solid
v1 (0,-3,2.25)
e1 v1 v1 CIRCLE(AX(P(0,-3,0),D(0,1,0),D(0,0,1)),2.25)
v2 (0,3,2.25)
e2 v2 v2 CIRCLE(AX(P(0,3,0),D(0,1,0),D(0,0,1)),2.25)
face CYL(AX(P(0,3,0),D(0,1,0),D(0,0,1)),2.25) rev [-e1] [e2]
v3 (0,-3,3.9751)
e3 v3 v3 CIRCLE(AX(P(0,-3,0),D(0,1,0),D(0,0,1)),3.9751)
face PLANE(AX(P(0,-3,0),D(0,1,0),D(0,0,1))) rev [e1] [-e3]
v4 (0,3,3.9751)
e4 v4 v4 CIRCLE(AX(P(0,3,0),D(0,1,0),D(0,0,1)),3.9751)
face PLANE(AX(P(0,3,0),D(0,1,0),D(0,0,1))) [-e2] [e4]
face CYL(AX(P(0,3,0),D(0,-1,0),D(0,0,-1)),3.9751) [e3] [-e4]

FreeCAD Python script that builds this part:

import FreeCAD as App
import Part
import Sketcher
from FreeCAD import Vector

doc = App.newDocument("Part")
body = doc.addObject("PartDesign::Body", "Body")

sketch1 = doc.addObject("Sketcher::SketchObject", "Sketch")
body.addObject(sketch1)
sketch1.AttachmentSupport = (doc.XZ_Plane, [""])
sketch1.MapMode = "FlatFace"
sketch1.addGeometry(Part.Circle(Vector(0, 0, 0), Vector(0, 0, 1), 4), False)
sketch1.addConstraint([
    Sketcher.Constraint("Coincident", 0, 3, -1, 1),
    Sketcher.Constraint("Diameter", 0, 7.9502),
])
pad1 = doc.addObject("PartDesign::Pad", "Pad")
body.addObject(pad1)
pad1.Profile = sketch1
pad1.Length = 6
pad1.Midplane = True

sketch2 = doc.addObject("Sketcher::SketchObject", "Sketch001")
body.addObject(sketch2)
sketch2.AttachmentSupport = (doc.XZ_Plane, [""])
sketch2.MapMode = "FlatFace"
sketch2.AttachmentOffset = App.Placement(Vector(0, 0, -3), App.Rotation())
sketch2.addGeometry(Part.Circle(Vector(0, 0, 0), Vector(0, 0, 1), 2.2), False)
sketch2.addConstraint([
    Sketcher.Constraint("Coincident", 0, 3, -1, 1),
    Sketcher.Constraint("Diameter", 0, 4.5),
])
doc.recompute()
hole = doc.addObject("PartDesign::Hole", "Hole")
body.addObject(hole)
hole.Profile = sketch2
hole.ThreadType = "None"
hole.Diameter = 4.5
hole.DepthType = "ThroughAll"
hole.Reversed = True

doc.recompute()
